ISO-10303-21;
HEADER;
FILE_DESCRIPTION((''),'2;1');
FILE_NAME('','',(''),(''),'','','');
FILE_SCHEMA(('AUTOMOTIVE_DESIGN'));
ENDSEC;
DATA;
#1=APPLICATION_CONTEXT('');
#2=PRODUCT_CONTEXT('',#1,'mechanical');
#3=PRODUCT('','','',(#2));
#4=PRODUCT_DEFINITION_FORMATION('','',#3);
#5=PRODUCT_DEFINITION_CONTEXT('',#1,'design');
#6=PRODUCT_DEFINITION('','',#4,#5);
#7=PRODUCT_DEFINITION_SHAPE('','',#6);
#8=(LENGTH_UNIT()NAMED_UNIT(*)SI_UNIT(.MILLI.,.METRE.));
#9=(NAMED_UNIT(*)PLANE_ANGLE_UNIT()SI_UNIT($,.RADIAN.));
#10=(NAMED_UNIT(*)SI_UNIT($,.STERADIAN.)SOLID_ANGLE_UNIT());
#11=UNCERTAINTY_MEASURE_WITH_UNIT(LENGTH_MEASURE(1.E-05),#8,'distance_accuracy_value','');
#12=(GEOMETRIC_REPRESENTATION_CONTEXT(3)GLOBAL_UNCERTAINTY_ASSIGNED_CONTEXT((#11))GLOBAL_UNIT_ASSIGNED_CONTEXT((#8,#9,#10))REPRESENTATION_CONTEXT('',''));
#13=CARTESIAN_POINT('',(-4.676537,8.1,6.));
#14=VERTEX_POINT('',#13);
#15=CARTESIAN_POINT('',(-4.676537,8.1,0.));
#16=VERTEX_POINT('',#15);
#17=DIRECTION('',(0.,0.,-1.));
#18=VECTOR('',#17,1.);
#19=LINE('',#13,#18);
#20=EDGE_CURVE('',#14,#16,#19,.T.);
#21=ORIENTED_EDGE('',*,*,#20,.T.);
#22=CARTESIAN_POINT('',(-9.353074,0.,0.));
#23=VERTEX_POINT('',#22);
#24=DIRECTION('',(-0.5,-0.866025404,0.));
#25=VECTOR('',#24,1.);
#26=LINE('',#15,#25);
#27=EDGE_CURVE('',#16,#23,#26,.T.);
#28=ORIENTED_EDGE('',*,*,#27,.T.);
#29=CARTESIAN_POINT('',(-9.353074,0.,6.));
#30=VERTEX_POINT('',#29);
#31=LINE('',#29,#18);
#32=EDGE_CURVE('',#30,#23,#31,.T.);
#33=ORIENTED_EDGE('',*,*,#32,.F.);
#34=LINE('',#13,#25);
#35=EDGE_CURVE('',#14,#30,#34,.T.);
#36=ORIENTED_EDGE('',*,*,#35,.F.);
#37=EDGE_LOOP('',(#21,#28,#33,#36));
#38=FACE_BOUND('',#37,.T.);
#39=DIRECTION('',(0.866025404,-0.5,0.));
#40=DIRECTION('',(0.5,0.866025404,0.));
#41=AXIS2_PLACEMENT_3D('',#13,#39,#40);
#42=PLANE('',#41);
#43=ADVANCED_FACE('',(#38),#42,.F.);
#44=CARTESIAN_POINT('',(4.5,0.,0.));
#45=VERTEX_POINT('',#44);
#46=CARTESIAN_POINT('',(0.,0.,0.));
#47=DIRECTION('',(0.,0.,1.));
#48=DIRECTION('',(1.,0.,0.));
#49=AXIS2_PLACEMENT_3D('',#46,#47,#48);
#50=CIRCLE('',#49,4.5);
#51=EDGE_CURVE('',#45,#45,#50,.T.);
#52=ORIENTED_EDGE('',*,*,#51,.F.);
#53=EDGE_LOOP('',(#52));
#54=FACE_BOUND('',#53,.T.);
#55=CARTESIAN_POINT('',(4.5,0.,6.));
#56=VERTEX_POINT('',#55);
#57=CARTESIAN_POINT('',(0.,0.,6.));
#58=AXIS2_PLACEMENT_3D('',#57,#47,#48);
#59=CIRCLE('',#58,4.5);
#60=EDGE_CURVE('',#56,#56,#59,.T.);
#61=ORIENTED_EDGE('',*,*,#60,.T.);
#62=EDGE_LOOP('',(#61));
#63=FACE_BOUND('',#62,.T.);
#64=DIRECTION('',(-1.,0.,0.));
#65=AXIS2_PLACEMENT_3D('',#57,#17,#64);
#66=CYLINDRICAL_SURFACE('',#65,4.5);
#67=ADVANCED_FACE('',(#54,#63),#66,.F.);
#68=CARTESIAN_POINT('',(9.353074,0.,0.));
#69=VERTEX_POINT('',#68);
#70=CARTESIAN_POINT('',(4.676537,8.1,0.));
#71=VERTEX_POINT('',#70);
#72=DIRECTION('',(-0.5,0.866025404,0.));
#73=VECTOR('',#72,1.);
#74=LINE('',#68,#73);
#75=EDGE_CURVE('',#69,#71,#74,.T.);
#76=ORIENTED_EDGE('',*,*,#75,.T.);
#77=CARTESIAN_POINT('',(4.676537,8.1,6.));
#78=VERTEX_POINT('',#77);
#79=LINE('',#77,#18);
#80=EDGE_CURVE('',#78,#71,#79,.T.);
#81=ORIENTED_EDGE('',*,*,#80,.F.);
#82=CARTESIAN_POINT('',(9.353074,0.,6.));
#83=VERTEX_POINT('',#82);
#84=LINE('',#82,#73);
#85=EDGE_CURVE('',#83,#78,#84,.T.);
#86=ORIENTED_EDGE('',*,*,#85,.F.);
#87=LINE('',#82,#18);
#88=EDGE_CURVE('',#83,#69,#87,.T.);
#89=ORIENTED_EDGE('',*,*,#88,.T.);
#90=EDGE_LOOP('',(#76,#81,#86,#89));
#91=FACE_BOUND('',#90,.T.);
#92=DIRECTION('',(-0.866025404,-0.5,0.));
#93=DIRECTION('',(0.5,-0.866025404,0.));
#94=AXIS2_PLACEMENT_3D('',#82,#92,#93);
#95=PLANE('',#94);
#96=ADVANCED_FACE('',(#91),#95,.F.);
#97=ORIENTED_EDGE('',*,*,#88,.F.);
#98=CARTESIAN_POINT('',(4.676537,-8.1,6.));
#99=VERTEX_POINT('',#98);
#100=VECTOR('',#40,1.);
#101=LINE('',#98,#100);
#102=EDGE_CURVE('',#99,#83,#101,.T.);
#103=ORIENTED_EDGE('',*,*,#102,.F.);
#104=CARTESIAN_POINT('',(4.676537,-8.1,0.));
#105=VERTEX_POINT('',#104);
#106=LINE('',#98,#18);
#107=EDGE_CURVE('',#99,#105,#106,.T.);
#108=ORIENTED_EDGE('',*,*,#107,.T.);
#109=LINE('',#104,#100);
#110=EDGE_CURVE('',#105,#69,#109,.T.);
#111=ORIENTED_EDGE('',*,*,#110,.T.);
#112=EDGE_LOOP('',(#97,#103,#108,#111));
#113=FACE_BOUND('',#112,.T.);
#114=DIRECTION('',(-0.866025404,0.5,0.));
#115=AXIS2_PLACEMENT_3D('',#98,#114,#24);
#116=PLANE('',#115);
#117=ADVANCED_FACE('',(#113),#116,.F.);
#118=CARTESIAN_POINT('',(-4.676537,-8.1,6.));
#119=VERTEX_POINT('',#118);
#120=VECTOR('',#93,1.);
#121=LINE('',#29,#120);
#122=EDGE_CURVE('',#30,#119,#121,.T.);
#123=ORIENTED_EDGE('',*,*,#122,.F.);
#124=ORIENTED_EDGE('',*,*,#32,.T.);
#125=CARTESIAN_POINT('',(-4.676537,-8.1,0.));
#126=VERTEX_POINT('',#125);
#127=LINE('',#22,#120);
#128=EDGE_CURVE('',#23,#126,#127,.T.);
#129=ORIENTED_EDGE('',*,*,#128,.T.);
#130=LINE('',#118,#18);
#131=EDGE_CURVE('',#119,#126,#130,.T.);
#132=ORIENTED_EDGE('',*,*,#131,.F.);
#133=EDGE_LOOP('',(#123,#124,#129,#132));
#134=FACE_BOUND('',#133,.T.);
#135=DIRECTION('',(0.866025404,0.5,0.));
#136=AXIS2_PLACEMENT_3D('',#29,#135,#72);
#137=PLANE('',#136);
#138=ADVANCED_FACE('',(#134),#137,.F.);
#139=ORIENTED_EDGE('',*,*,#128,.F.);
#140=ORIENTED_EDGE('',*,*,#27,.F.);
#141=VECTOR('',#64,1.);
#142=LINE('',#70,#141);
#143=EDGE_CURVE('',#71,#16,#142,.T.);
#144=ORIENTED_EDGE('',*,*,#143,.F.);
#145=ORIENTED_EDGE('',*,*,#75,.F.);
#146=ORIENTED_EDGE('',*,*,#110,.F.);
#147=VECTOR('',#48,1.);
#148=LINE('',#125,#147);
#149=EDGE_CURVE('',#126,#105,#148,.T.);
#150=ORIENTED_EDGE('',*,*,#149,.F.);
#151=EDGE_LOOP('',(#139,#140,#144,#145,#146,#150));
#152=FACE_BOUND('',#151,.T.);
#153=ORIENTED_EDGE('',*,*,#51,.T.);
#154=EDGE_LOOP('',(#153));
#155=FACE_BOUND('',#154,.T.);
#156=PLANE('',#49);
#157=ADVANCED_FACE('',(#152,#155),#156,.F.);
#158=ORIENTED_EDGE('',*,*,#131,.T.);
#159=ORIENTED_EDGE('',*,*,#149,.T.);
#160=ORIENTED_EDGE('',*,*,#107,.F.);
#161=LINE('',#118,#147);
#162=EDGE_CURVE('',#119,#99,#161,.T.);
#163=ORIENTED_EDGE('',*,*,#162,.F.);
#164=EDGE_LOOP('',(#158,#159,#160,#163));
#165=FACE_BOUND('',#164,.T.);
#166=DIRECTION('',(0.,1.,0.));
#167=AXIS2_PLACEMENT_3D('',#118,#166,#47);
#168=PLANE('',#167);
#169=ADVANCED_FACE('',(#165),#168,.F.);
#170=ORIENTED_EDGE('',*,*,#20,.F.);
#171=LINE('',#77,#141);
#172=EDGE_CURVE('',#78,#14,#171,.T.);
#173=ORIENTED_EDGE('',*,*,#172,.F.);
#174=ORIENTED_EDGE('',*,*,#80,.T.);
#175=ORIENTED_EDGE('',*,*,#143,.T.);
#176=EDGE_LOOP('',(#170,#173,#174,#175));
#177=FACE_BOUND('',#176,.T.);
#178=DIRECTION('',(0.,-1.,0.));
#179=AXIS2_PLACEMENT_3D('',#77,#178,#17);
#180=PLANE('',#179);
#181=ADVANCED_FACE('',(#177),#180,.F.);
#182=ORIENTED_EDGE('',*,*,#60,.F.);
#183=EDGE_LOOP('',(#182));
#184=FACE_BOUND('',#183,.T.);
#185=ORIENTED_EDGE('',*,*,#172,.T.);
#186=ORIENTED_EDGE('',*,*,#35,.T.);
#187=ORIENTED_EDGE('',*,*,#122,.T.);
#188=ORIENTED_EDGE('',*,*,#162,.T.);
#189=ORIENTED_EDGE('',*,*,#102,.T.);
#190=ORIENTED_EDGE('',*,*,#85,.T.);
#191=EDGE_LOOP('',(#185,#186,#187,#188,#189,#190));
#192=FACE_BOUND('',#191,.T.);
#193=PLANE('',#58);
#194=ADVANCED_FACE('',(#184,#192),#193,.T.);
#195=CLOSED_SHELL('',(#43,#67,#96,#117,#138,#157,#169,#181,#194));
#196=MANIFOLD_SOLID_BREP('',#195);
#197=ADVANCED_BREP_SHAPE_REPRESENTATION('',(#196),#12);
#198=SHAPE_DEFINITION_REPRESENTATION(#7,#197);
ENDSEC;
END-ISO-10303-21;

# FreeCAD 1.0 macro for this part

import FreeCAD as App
import Part
import Sketcher
from FreeCAD import Vector
Q = App.Units.Quantity

doc = App.newDocument("Part")
params = doc.addObject("Spreadsheet::Sheet", "Params")
for row, (alias, value) in enumerate([
    ("sketch1_diameter", "9 mm"),
    ("pad1_length", "6 mm"),
], start=1):
    params.set(f"A{row}", alias)
    params.set(f"B{row}", "=" + value)
    params.setAlias(f"B{row}", alias)

body = doc.addObject("PartDesign::Body", "Body")

sketch1 = body.newObject("Sketcher::SketchObject", "Sketch")
sketch1.AttachmentSupport = (doc.getObject("XY_Plane"), [""])
sketch1.MapMode = "FlatFace"
sketch1.addGeometry(Part.LineSegment(Vector(4.7, 8.1, 0), Vector(-4.7, 8.1, 0)), False)
sketch1.addGeometry(Part.LineSegment(Vector(-4.7, 8.1, 0), Vector(-9.4, 0, 0)), False)
sketch1.addGeometry(Part.LineSegment(Vector(-9.4, 0, 0), Vector(-4.7, -8.1, 0)), False)
sketch1.addGeometry(Part.LineSegment(Vector(-4.7, -8.1, 0), Vector(4.7, -8.1, 0)), False)
sketch1.addGeometry(Part.LineSegment(Vector(4.7, -8.1, 0), Vector(9.4, 0, 0)), False)
sketch1.addGeometry(Part.LineSegment(Vector(9.4, 0, 0), Vector(4.7, 8.1, 0)), False)
sketch1.addGeometry(Part.Circle(Vector(0, 0, 0), Vector(0, 0, 1), 4.5), False)
sketch1.addConstraint(Sketcher.Constraint("Coincident", 0, 2, 1, 1))
sketch1.addConstraint(Sketcher.Constraint("Coincident", 1, 2, 2, 1))
sketch1.addConstraint(Sketcher.Constraint("Coincident", 2, 2, 3, 1))
sketch1.addConstraint(Sketcher.Constraint("Coincident", 3, 2, 4, 1))
sketch1.addConstraint(Sketcher.Constraint("Coincident", 4, 2, 5, 1))
sketch1.addConstraint(Sketcher.Constraint("Coincident", 5, 2, 0, 1))
sketch1.addConstraint(Sketcher.Constraint("Horizontal", 0))
sketch1.addConstraint(Sketcher.Constraint("Horizontal", 3))
sketch1.addConstraint(Sketcher.Constraint("Coincident", 6, 3, -1, 1))
sketch1.addConstraint(Sketcher.Constraint("Symmetric", 0, 2, 3, 2, -1, 1))
sketch1.addConstraint(Sketcher.Constraint("Symmetric", 1, 2, 4, 2, -1, 1))
sketch1.addConstraint(Sketcher.Constraint("PointOnObject", 1, 2, -1))
sketch1.addConstraint(Sketcher.Constraint("Parallel", 2, 5))
sketch1.addConstraint(Sketcher.Constraint("Vertical", 0, 2, 2, 2))
sketch1.addConstraint(Sketcher.Constraint("Diameter", 6, 9.0))
sketch1.addConstraint(Sketcher.Constraint("Angle", 1, Q("-120 deg")))
sketch1.addConstraint(Sketcher.Constraint("DistanceY", -1, 1, 0, 2, 8.1))
sketch1.addConstraint(Sketcher.Constraint("DistanceX", 0, 2, 0, 1, 9.353074))
sketch1.setExpression("Constraints[14]", "Params.sketch1_diameter")
pad1 = body.newObject("PartDesign::Pad", "Pad")
pad1.Profile = sketch1
pad1.setExpression("Length", "Params.pad1_length")

doc.recompute()
